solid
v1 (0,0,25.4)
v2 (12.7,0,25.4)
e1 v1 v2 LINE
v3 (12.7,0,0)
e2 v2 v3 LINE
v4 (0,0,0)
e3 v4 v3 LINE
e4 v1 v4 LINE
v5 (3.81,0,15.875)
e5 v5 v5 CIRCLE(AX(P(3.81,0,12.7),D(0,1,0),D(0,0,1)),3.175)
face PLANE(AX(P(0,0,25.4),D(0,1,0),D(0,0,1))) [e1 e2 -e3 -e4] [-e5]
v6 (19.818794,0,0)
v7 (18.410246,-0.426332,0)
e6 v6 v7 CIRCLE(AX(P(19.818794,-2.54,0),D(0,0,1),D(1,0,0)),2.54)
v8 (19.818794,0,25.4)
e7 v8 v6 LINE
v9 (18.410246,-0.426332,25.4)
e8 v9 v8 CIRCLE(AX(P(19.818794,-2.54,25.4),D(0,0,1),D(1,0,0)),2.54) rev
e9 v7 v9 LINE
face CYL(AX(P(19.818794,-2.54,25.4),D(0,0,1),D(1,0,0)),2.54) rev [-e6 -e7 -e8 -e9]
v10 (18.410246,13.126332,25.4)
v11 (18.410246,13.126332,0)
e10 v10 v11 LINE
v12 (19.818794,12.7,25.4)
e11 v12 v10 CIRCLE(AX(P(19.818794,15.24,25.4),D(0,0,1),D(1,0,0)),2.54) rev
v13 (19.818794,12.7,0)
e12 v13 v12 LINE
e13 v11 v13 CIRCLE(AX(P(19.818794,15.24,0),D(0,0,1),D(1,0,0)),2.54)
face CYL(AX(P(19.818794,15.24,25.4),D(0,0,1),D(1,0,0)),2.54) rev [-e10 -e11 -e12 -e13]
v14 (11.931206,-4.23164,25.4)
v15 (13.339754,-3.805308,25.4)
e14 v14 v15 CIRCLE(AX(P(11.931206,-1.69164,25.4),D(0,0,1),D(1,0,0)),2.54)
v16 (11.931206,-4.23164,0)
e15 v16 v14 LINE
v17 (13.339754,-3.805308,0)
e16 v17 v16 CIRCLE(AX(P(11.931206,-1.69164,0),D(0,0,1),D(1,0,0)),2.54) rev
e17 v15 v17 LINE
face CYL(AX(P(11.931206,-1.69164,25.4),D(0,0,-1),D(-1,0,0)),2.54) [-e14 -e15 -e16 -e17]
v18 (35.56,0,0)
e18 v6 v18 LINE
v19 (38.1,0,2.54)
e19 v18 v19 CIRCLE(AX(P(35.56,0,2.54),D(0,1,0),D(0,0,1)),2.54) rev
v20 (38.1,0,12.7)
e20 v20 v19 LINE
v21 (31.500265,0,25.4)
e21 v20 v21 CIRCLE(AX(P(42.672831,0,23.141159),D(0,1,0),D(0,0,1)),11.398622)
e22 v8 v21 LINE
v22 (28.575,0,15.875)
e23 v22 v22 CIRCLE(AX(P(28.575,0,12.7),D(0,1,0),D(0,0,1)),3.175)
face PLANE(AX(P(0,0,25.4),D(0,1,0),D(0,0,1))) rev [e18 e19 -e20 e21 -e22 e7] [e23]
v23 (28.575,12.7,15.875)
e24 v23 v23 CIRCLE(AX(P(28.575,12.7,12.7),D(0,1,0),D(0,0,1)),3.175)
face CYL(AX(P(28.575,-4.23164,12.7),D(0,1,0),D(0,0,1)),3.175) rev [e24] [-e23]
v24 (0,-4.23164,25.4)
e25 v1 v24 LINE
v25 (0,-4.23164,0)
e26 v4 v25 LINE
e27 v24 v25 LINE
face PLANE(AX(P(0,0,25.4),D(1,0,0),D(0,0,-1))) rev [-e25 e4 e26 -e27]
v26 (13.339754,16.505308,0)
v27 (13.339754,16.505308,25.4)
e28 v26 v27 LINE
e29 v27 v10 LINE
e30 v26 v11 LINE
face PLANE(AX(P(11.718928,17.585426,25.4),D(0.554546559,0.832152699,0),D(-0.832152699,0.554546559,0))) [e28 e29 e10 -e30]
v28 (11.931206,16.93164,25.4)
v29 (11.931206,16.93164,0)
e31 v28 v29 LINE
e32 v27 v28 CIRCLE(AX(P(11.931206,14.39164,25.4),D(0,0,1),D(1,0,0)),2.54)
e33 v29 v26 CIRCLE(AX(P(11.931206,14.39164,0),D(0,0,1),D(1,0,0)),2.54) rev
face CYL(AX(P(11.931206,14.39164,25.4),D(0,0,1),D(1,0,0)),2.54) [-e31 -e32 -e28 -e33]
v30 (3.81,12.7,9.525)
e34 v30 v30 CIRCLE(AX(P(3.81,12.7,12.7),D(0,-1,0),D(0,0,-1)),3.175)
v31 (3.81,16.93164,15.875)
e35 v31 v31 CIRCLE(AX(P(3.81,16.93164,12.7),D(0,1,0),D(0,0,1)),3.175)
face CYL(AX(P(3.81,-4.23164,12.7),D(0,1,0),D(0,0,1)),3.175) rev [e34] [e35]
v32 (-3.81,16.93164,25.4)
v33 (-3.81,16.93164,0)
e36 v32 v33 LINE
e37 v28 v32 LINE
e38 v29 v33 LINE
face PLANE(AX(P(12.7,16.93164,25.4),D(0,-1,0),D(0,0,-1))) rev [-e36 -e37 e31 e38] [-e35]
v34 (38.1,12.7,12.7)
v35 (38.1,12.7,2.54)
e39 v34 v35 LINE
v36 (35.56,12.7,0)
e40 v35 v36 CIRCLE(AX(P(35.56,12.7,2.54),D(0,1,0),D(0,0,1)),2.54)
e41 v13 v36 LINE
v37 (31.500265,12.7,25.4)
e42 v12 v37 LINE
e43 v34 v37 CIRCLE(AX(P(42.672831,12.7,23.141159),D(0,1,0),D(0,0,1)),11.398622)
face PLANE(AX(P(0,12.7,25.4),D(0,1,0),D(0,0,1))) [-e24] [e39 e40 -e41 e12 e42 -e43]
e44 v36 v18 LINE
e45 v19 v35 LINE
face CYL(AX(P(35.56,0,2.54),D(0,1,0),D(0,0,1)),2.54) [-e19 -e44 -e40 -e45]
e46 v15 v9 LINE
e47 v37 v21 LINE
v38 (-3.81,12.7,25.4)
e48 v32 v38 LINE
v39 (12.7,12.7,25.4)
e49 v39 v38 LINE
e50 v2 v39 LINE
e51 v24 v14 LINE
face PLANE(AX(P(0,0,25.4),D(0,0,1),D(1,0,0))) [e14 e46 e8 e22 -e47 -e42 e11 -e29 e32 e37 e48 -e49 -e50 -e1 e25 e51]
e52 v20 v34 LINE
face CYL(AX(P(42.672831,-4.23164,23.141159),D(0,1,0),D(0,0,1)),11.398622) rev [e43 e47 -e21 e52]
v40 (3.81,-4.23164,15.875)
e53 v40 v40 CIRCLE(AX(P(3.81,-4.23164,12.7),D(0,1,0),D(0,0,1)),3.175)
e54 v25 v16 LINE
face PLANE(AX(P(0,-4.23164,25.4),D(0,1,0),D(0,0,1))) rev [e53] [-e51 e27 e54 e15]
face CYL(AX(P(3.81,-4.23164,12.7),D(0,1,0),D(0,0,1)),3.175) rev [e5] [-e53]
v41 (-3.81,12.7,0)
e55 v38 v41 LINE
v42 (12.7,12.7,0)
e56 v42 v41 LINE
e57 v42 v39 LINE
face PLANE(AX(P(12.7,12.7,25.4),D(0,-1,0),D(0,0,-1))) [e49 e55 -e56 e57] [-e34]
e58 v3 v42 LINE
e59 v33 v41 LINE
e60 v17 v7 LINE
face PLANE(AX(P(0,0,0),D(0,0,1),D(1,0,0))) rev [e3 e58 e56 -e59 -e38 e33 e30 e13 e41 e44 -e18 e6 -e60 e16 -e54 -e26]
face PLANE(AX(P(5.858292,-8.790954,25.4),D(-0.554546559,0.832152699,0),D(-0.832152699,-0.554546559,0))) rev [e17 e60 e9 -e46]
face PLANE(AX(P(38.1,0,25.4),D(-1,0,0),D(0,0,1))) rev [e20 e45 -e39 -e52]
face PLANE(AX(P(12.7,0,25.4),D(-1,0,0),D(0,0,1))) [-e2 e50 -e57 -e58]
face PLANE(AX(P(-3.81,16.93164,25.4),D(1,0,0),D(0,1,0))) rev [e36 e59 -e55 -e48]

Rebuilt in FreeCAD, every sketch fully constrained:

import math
import FreeCAD as App
import Part
import Sketcher
from FreeCAD import Vector
Q = App.Units.Quantity


def edges_at(feature, points):
    """Names of the edges that pass closest to the given points."""
    edges = feature.Shape.Edges
    near = lambda p: min(range(len(edges)), key=lambda i: edges[i].distToShape(Part.Vertex(*p))[0])
    return sorted({f"Edge{near(p) + 1}" for p in points})


def add_polygon(sketch, points):
    """Adds a closed chain of lines whose ends are joined by coincident constraints."""
    first, n = sketch.GeometryCount, len(points)
    for a, b in zip(points, points[1:] + points[:1]):
        sketch.addGeometry(Part.LineSegment(App.Vector(*a, 0), App.Vector(*b, 0)), False)
    for i in range(n):
        sketch.addConstraint(Sketcher.Constraint("Coincident", first + i, 2, first + (i + 1) % n, 1))

doc = App.newDocument("Part")
body = doc.addObject("PartDesign::Body", "Body")

sketch1 = body.newObject("Sketcher::SketchObject", "Sketch")
sketch1.AttachmentSupport = (doc.getObject("XY_Plane"), [""])
sketch1.MapMode = "FlatFace"
add_polygon(sketch1, [(0, 0), (0, -4.2), (12.7, -4.2), (19.1, 0), (38.1, 0), (38.1, 12.7), (19.1, 12.7), (12.7, 16.9), (-3.8, 16.9), (-3.8, 12.7), (12.7, 12.7), (12.7, 0)])
sketch1.addConstraint(Sketcher.Constraint("Vertical", 0))
sketch1.addConstraint(Sketcher.Constraint("Horizontal", 1))
sketch1.addConstraint(Sketcher.Constraint("Horizontal", 3))
sketch1.addConstraint(Sketcher.Constraint("Vertical", 4))
sketch1.addConstraint(Sketcher.Constraint("Horizontal", 5))
sketch1.addConstraint(Sketcher.Constraint("Horizontal", 7))
sketch1.addConstraint(Sketcher.Constraint("Vertical", 8))
sketch1.addConstraint(Sketcher.Constraint("Horizontal", 9))
sketch1.addConstraint(Sketcher.Constraint("Vertical", 10))
sketch1.addConstraint(Sketcher.Constraint("Horizontal", 11))
sketch1.addConstraint(Sketcher.Constraint("Coincident", 11, 2, -1, 1))
sketch1.addConstraint(Sketcher.Constraint("PointOnObject", 2, 2, -1))
sketch1.addConstraint(Sketcher.Constraint("Horizontal", 5, 2, 8, 2))
sketch1.addConstraint(Sketcher.Constraint("Vertical", 2, 2, 5, 2))
sketch1.addConstraint(Sketcher.Constraint("Vertical", 1, 2, 6, 2))
sketch1.addConstraint(Sketcher.Constraint("Vertical", 6, 2, 9, 2))
sketch1.addConstraint(Sketcher.Constraint("Equal", 11, 4))
sketch1.addConstraint(Sketcher.Constraint("Equal", 0, 8))
sketch1.addConstraint(Sketcher.Constraint("DistanceX", 1, 1, 1, 2, Q("0.5 in")))
sketch1.addConstraint(Sketcher.Constraint("DistanceX", 1, 2, 3, 2, Q("1 in")))
sketch1.addConstraint(Sketcher.Constraint("DistanceX", 3, 1, 3, 2, Q("0.75 in")))
sketch1.addConstraint(Sketcher.Constraint("DistanceX", 7, 2, 7, 1, Q("0.65 in")))
sketch1.addConstraint(Sketcher.Constraint("DistanceY", 0, 2, 0, 1, Q("0.1666 in")))
pad1 = body.newObject("PartDesign::Pad", "Pad")
pad1.Profile = sketch1
pad1.Length = Q("1 in")

sketch2 = body.newObject("Sketcher::SketchObject", "Sketch001")
sketch2.AttachmentSupport = (doc.getObject("XZ_Plane"), [""])
sketch2.MapMode = "FlatFace"
sketch2.addGeometry(Part.Circle(Vector(3.8, 12.7, 0), Vector(0, 0, 1), 3.2), False)
sketch2.addConstraint(Sketcher.Constraint("Diameter", 0, Q("0.25 in")))
sketch2.addConstraint(Sketcher.Constraint("DistanceY", -1, 1, 0, 3, Q("0.5 in")))
sketch2.addConstraint(Sketcher.Constraint("DistanceX", -1, 1, 0, 3, Q("0.15 in")))
pocket1 = body.newObject("PartDesign::Pocket", "Pocket")
pocket1.Profile = sketch2
pocket1.Type = "ThroughAll"
pocket1.Midplane = True

sketch3 = body.newObject("Sketcher::SketchObject", "Sketch002")
sketch3.AttachmentSupport = (doc.getObject("XZ_Plane"), [""])
sketch3.MapMode = "FlatFace"
sketch3.AttachmentOffset = App.Placement(Vector(0, 0, -0.5 * 25.4), App.Rotation())
sketch3.addGeometry(Part.Circle(Vector(28.6, 12.7, 0), Vector(0, 0, 1), 3.2), False)
sketch3.addConstraint(Sketcher.Constraint("Diameter", 0, Q("0.25 in")))
sketch3.addConstraint(Sketcher.Constraint("DistanceY", -1, 1, 0, 3, Q("0.5 in")))
sketch3.addConstraint(Sketcher.Constraint("DistanceX", -1, 1, 0, 3, Q("1.125 in")))
pocket2 = body.newObject("PartDesign::Pocket", "Pocket001")
pocket2.Profile = sketch3
pocket2.Type = "ThroughAll"
pocket2.Midplane = True

sketch4 = body.newObject("Sketcher::SketchObject", "Sketch003")
sketch4.AttachmentSupport = (doc.getObject("XZ_Plane"), [""])
sketch4.MapMode = "FlatFace"
sketch4.AttachmentOffset = App.Placement(Vector(0, 0, -0.5 * 25.4), App.Rotation())
sketch4.addGeometry(Part.LineSegment(Vector(38, 25, 0), Vector(38, 13, 0)), False)
sketch4.addGeometry(Part.ArcOfCircle(Part.Circle(Vector(43, 23, 0), Vector(0, 0, 1), 11), math.radians(169), math.radians(246)), False)
sketch4.addGeometry(Part.LineSegment(Vector(32, 25, 0), Vector(38, 25, 0)), False)
sketch4.addConstraint(Sketcher.Constraint("Coincident", 0, 2, 1, 2))
sketch4.addConstraint(Sketcher.Constraint("Coincident", 1, 1, 2, 1))
sketch4.addConstraint(Sketcher.Constraint("Coincident", 2, 2, 0, 1))
sketch4.addConstraint(Sketcher.Constraint("Vertical", 0))
sketch4.addConstraint(Sketcher.Constraint("Horizontal", 2))
sketch4.addConstraint(Sketcher.Constraint("DistanceY", 0, 2, 0, 1, Q("0.5 in")))
sketch4.addConstraint(Sketcher.Constraint("DistanceY", -1, 1, 1, 1, Q("1 in")))
sketch4.addConstraint(Sketcher.Constraint("DistanceX", -1, 1, 0, 2, Q("1.5 in")))
sketch4.addConstraint(Sketcher.Constraint("Radius", 1, Q("11.398622 mm")))
sketch4.addConstraint(Sketcher.Constraint("DistanceX", 2, 1, 2, 2, Q("6.599735 mm")))
pocket3 = body.newObject("PartDesign::Pocket", "Pocket002")
pocket3.Profile = sketch4
pocket3.Type = "ThroughAll"
pocket3.Midplane = True
doc.recompute()

fillet = body.newObject("PartDesign::Fillet", "Fillet")
fillet.Base = (pocket3, edges_at(pocket3, [
    (38.1, 6.35, 0),
    (12.7, 16.932, 12.7),
    (19.05, 12.7, 12.7),
    (19.05, 0, 12.7),
    (12.7, -4.232, 12.7),
]))
fillet.Radius = Q("0.1 in")

doc.recompute()
